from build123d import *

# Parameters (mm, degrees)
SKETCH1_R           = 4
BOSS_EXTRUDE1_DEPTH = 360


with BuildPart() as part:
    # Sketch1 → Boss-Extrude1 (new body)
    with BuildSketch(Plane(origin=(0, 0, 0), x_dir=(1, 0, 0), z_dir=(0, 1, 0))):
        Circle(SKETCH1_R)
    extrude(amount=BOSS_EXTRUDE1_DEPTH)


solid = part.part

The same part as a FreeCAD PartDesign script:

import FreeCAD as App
import Part
import Sketcher

V = App.Vector

doc = App.newDocument("Part")
params = doc.addObject("Spreadsheet::Sheet", "Params")
for row, (alias, value) in enumerate([
    ("sketch1_diameter", "8 mm"),
    ("pad1_length", "360 mm"),
], start=1):
    params.set(f"A{row}", alias)
    params.set(f"B{row}", "=" + value)
    params.setAlias(f"B{row}", alias)

body = doc.addObject("PartDesign::Body", "Body")

sketch1 = body.newObject("Sketcher::SketchObject", "Sketch")
sketch1.AttachmentSupport = (doc.getObject("XZ_Plane"), [""])
sketch1.MapMode = "FlatFace"
sketch1.addGeometry(Part.Circle(V(0, 0, 0), V(0, 0, 1), 4), False)
sketch1.addConstraint([
    Sketcher.Constraint("Coincident", 0, 3, -1, 1),
    Sketcher.Constraint("Diameter", 0, 8.0),
])
sketch1.setExpression("Constraints[1]", "Params.sketch1_diameter")
pad1 = body.newObject("PartDesign::Pad", "Pad")
pad1.Profile = sketch1
pad1.setExpression("Length", "Params.pad1_length")
pad1.Reversed = True

doc.recompute()
